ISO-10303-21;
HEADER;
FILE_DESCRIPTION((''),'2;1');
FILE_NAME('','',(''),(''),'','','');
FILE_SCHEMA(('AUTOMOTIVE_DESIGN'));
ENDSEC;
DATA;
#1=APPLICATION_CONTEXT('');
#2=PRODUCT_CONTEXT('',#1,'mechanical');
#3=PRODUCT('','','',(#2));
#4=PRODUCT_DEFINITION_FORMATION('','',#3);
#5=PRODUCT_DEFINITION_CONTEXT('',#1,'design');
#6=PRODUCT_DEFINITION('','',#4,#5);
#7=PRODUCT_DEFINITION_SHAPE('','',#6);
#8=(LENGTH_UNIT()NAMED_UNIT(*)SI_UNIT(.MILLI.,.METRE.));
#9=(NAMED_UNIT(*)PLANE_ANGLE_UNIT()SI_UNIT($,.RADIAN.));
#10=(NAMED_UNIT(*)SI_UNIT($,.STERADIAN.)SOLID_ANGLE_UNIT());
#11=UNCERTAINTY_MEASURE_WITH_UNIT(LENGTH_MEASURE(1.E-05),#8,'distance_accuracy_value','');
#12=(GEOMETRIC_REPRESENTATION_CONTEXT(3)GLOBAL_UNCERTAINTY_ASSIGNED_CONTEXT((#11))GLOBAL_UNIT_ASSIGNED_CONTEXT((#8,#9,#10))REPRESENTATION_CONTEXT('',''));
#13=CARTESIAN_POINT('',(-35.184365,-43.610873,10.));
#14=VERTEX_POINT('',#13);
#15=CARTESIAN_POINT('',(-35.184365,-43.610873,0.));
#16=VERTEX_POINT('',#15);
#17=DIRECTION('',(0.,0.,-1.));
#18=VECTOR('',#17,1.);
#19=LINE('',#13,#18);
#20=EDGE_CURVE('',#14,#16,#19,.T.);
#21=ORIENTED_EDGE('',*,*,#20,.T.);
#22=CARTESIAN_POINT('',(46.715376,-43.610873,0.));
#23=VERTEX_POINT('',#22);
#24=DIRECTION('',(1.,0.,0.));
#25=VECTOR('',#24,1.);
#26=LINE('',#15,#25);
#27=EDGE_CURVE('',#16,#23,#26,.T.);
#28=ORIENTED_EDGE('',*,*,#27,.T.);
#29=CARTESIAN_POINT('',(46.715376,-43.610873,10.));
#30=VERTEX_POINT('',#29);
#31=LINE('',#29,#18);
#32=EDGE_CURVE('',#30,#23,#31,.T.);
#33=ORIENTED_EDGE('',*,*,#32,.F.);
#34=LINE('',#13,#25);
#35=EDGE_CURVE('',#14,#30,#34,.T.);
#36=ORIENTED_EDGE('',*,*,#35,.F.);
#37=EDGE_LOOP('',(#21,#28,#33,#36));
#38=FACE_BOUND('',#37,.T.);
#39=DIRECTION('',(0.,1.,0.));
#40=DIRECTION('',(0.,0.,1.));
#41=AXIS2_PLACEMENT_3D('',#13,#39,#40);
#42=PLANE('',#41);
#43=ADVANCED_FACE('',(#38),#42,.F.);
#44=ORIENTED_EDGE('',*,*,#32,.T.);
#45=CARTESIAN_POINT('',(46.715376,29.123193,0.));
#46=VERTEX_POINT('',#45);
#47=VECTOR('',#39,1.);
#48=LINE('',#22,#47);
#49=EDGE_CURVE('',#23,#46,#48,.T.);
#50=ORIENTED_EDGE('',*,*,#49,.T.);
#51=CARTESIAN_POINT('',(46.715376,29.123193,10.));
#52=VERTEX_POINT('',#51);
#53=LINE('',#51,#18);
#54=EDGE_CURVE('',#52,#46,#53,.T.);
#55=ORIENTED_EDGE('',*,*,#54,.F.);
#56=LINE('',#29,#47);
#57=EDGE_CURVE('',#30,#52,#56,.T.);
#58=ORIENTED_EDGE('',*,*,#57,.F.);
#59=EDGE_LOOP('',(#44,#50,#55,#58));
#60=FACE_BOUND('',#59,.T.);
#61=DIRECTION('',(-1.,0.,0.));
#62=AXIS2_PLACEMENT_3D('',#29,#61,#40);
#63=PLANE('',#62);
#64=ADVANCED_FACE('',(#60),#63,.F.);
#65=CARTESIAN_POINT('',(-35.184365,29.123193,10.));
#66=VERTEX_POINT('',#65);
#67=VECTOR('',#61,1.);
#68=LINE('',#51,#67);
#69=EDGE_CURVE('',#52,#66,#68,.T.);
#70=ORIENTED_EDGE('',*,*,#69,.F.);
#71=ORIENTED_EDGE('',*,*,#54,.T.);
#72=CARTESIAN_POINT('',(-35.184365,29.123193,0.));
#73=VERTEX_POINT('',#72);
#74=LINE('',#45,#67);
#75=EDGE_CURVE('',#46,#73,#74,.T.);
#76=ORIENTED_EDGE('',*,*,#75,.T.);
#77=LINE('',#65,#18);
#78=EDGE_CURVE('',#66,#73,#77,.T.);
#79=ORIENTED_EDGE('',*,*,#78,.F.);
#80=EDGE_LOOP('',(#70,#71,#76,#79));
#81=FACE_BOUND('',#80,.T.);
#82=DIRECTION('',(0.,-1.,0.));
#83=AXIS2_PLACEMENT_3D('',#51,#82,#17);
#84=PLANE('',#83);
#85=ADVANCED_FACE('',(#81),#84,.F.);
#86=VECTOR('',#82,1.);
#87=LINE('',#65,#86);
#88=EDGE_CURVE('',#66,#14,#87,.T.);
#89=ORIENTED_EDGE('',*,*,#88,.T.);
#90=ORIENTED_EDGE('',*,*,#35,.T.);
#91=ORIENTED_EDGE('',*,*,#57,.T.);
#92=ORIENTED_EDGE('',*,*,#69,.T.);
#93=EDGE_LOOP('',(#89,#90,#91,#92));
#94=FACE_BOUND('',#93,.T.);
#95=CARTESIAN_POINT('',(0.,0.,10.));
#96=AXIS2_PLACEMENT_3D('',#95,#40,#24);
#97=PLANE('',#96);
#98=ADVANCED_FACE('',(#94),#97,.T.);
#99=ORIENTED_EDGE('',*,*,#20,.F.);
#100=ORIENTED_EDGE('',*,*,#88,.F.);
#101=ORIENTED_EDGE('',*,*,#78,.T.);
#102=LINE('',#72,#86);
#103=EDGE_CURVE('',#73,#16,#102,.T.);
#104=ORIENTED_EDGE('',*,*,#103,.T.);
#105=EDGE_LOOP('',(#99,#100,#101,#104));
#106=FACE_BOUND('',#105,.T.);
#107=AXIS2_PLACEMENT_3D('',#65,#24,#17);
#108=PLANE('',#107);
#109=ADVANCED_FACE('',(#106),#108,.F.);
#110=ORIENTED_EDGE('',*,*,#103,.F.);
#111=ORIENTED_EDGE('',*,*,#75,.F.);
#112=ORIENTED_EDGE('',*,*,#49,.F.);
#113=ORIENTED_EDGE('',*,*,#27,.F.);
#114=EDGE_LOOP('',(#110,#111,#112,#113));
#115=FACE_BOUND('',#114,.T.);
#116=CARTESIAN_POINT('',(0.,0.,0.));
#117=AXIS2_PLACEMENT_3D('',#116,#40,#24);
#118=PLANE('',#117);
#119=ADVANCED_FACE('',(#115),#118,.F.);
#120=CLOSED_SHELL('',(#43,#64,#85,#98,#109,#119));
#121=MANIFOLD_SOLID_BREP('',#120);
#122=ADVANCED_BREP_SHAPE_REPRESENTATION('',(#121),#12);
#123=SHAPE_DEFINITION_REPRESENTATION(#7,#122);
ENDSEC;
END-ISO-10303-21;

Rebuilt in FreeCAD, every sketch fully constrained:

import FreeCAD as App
import Part
import Sketcher

V = App.Vector

doc = App.newDocument("Part")
params = doc.addObject("Spreadsheet::Sheet", "Params")
for row, (alias, value) in enumerate([
    ("pad1_length", "10 mm"),
], start=1):
    params.set(f"A{row}", alias)
    params.set(f"B{row}", "=" + value)
    params.setAlias(f"B{row}", alias)

body = doc.addObject("PartDesign::Body", "Body")

sketch1 = body.newObject("Sketcher::SketchObject", "Sketch")
sketch1.AttachmentSupport = (doc.getObject("XY_Plane"), [""])
sketch1.MapMode = "FlatFace"
sketch1.addGeometry(Part.LineSegment(V(-35.184365, 29.123193, 0), V(-35.184365, -43.610873, 0)), False)
sketch1.addGeometry(Part.LineSegment(V(-35.184365, -43.610873, 0), V(46.715376, -43.610873, 0)), False)
sketch1.addGeometry(Part.LineSegment(V(46.715376, -43.610873, 0), V(46.715376, 29.123193, 0)), False)
sketch1.addGeometry(Part.LineSegment(V(46.715376, 29.123193, 0), V(-35.184365, 29.123193, 0)), False)
sketch1.addConstraint(Sketcher.Constraint("Coincident", 0, 2, 1, 1))
sketch1.addConstraint(Sketcher.Constraint("Coincident", 1, 2, 2, 1))
sketch1.addConstraint(Sketcher.Constraint("Coincident", 2, 2, 3, 1))
sketch1.addConstraint(Sketcher.Constraint("Coincident", 3, 2, 0, 1))
sketch1.addConstraint(Sketcher.Constraint("Vertical", 0))
sketch1.addConstraint(Sketcher.Constraint("Horizontal", 1))
sketch1.addConstraint(Sketcher.Constraint("Vertical", 2))
sketch1.addConstraint(Sketcher.Constraint("Horizontal", 3))
sketch1.addConstraint(Sketcher.Constraint("DistanceX", 1, 1, 1, 2, 81.899741))
sketch1.addConstraint(Sketcher.Constraint("DistanceY", 0, 2, 0, 1, 72.734066))
sketch1.addConstraint(Sketcher.Constraint("DistanceX", 0, 2, -1, 1, 35.184365))
sketch1.addConstraint(Sketcher.Constraint("DistanceY", 0, 2, -1, 1, 43.610873))
pad1 = body.newObject("PartDesign::Pad", "Pad")
pad1.Profile = sketch1
pad1.setExpression("Length", "Params.pad1_length")

doc.recompute()
